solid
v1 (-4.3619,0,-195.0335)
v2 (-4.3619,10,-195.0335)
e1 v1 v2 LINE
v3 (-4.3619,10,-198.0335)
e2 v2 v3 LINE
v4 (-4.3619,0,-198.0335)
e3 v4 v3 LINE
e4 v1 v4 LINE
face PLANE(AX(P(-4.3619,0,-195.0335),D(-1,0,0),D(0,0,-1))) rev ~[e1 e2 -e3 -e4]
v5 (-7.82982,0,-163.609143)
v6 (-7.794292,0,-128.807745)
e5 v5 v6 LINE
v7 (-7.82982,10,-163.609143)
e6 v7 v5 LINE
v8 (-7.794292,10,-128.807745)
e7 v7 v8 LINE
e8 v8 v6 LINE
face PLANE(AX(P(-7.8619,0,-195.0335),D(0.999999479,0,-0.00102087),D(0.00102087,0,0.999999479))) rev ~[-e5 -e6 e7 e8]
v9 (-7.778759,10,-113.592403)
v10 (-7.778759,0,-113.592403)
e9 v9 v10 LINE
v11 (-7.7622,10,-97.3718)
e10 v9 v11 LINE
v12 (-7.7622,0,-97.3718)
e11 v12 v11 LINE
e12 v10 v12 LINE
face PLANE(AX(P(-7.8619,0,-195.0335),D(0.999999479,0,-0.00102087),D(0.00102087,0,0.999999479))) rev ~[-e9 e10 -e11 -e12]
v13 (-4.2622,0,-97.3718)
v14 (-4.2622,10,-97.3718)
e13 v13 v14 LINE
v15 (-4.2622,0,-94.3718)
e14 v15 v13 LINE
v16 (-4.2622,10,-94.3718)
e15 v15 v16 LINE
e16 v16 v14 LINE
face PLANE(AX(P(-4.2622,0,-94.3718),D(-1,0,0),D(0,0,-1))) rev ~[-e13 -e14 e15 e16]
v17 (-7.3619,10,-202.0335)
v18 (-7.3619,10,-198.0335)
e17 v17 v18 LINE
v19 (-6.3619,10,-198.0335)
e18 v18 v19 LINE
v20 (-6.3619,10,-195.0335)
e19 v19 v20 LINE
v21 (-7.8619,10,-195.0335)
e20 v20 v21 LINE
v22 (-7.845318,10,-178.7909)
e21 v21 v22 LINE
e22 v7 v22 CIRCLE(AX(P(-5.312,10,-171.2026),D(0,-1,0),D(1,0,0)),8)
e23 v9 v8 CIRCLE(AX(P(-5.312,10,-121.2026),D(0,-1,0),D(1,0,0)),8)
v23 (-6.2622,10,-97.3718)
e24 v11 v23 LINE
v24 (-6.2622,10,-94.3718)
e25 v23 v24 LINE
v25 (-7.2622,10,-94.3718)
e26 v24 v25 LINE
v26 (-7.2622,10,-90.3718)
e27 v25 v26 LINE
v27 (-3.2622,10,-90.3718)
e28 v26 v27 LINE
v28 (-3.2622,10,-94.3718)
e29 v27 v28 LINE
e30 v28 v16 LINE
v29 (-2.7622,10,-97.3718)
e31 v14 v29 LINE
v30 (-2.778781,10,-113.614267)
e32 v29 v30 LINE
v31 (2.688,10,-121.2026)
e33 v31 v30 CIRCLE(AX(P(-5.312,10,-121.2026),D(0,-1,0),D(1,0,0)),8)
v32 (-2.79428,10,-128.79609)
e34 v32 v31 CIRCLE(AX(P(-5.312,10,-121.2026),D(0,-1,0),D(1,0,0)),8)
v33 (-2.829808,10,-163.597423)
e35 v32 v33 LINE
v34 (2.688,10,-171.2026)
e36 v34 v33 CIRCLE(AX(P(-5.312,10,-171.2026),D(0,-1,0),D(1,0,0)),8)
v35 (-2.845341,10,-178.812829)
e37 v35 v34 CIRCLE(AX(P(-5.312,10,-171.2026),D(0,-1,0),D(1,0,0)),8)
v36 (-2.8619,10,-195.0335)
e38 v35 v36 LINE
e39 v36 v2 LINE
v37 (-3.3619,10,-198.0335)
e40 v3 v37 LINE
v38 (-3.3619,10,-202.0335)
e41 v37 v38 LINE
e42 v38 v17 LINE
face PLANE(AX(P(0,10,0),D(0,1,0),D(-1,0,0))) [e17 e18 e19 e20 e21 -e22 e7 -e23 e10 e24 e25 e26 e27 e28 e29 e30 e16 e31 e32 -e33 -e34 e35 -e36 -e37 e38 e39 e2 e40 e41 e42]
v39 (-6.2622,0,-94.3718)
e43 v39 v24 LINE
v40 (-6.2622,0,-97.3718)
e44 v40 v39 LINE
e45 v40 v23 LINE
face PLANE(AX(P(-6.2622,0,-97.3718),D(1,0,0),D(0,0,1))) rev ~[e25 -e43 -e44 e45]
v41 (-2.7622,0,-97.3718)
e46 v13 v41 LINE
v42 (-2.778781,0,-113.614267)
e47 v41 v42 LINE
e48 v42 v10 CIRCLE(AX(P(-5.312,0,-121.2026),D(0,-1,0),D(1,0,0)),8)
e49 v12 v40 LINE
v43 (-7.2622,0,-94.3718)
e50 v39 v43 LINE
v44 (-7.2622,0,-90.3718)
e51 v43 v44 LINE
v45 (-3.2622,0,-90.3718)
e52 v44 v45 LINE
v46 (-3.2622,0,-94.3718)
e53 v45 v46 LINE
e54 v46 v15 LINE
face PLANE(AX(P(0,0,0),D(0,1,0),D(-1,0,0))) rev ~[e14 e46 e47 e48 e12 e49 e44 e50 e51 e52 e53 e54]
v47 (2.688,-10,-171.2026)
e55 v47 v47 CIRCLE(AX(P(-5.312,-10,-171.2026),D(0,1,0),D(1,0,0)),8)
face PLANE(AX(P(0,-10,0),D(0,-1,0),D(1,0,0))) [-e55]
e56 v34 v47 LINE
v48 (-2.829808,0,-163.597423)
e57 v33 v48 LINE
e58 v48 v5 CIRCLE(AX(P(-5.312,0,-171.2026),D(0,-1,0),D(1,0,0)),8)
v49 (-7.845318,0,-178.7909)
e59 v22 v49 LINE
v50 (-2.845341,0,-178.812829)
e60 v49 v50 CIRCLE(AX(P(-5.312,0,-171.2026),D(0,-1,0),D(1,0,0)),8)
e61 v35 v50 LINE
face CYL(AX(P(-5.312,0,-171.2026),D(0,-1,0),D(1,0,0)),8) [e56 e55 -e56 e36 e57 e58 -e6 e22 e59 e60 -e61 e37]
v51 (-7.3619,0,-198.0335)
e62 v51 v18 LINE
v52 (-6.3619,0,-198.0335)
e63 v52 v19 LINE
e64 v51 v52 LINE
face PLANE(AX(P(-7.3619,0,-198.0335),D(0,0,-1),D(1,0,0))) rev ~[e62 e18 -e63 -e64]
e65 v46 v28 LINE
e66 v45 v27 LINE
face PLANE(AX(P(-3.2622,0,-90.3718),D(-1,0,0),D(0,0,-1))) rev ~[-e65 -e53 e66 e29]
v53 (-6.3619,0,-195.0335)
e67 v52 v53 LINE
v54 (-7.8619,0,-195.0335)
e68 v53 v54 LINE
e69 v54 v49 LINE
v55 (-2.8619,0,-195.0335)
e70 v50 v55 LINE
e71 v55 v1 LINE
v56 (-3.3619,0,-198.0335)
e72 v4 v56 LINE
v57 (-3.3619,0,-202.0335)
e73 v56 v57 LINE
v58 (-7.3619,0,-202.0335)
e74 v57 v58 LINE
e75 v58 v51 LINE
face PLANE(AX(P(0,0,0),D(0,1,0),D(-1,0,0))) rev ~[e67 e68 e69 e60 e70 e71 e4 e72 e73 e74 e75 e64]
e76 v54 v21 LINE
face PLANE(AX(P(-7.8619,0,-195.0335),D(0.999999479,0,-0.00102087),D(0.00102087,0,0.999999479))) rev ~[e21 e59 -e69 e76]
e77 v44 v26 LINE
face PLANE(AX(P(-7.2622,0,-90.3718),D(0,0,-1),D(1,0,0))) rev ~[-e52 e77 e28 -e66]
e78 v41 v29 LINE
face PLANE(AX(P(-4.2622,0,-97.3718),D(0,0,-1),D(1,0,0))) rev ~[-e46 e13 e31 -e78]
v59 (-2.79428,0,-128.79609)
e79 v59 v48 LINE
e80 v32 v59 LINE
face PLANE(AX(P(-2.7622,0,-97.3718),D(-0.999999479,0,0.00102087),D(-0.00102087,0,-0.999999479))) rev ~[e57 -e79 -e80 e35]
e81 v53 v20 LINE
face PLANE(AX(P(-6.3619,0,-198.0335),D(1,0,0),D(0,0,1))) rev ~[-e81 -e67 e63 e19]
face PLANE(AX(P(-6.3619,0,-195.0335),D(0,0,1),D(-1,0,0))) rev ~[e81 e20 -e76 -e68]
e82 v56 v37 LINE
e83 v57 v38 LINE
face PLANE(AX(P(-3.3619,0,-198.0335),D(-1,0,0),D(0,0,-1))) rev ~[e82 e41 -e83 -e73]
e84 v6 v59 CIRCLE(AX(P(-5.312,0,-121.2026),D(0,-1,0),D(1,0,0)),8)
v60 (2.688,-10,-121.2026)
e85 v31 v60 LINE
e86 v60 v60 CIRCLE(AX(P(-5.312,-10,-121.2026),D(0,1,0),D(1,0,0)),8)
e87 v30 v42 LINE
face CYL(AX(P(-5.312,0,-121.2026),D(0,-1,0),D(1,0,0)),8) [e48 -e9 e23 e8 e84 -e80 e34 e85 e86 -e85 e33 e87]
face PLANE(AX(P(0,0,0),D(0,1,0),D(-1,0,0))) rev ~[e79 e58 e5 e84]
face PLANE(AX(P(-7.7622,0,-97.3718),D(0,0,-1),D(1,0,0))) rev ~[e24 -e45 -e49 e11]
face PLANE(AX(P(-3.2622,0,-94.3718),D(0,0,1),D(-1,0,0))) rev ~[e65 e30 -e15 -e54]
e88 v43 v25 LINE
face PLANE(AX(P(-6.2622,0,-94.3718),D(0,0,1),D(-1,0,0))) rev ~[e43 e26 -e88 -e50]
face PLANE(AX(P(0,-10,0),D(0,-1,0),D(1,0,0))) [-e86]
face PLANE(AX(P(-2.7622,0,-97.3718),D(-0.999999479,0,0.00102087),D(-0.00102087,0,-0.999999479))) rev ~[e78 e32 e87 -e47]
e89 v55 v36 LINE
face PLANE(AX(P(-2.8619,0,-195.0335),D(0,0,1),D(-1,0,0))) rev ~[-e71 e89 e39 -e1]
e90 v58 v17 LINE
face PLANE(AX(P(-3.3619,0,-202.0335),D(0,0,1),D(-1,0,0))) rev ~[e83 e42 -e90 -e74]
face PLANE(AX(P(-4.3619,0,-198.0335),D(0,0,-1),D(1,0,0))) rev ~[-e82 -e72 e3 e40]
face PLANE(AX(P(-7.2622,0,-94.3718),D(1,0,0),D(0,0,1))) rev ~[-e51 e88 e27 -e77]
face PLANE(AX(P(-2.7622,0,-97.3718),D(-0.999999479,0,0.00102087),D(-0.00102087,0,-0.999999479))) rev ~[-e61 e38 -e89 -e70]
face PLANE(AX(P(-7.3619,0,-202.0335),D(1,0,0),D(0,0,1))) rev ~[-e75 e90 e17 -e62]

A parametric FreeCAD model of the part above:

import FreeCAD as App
import Part
import Sketcher

V = App.Vector


def add_polygon(sketch, points):
    """Adds a closed chain of lines whose ends are joined by coincident constraints."""
    first, n = sketch.GeometryCount, len(points)
    for a, b in zip(points, points[1:] + points[:1]):
        sketch.addGeometry(Part.LineSegment(App.Vector(*a, 0), App.Vector(*b, 0)), False)
    for i in range(n):
        sketch.addConstraint(Sketcher.Constraint("Coincident", first + i, 2, first + (i + 1) % n, 1))

doc = App.newDocument("Part")
body = doc.addObject("PartDesign::Body", "Body")

# Sketch on XZ plane
sketch1 = doc.addObject("Sketcher::SketchObject", "Sketch")
body.addObject(sketch1)
sketch1.AttachmentSupport = (doc.XZ_Plane, [""])
sketch1.MapMode = "FlatFace"
add_polygon(sketch1, [(-7.8619, -195.0335), (-7.7622, -97.3718), (-6.2622, -97.3718), (-6.2622, -94.3718), (-7.2622, -94.3718), (-7.2622, -90.3718), (-3.2622, -90.3718), (-3.2622, -94.3718), (-4.2622, -94.3718), (-4.2622, -97.3718), (-2.7622, -97.3718), (-2.8619, -195.0335), (-4.3619, -195.0335), (-4.3619, -198.0335), (-3.3619, -198.0335), (-3.3619, -202.0335), (-7.3619, -202.0335), (-7.3619, -198.0335), (-6.3619, -198.0335), (-6.3619, -195.0335)])  # lines 0-19
sketch1.addConstraint([
    Sketcher.Constraint("Horizontal", 1),
    Sketcher.Constraint("Vertical", 2),
    Sketcher.Constraint("Horizontal", 3),
    Sketcher.Constraint("Vertical", 4),
    Sketcher.Constraint("Horizontal", 5),
    Sketcher.Constraint("Vertical", 6),
    Sketcher.Constraint("Horizontal", 7),
    Sketcher.Constraint("Vertical", 8),
    Sketcher.Constraint("Horizontal", 9),
    Sketcher.Constraint("Horizontal", 11),
    Sketcher.Constraint("Vertical", 12),
    Sketcher.Constraint("Horizontal", 13),
    Sketcher.Constraint("Vertical", 14),
    Sketcher.Constraint("Horizontal", 15),
    Sketcher.Constraint("Vertical", 16),
    Sketcher.Constraint("Horizontal", 17),
    Sketcher.Constraint("Vertical", 18),
    Sketcher.Constraint("Horizontal", 19),
    Sketcher.Constraint("Parallel", 0, 10),
    Sketcher.Constraint("Horizontal", 3, 2, 6, 2),
    Sketcher.Constraint("Horizontal", 1, 2, 8, 2),
    Sketcher.Constraint("Horizontal", 13, 2, 16, 2),
    Sketcher.Constraint("Horizontal", 11, 2, 18, 2),
    Sketcher.Constraint("Equal", 3, 7),
    Sketcher.Constraint("Equal", 1, 9),
    Sketcher.Constraint("Equal", 9, 11),
    Sketcher.Constraint("Equal", 7, 13),
    Sketcher.Constraint("Equal", 5, 15),
    Sketcher.Constraint("Equal", 13, 17),
    Sketcher.Constraint("Equal", 15, 4),
    Sketcher.Constraint("Equal", 8, 12),
    Sketcher.Constraint("Equal", 6, 14),
    Sketcher.Constraint("DistanceX", 3, 2, 3, 1, 1.0),
    Sketcher.Constraint("DistanceX", 5, 1, 5, 2, 4.0),
    Sketcher.Constraint("DistanceY", 2, 1, 2, 2, 3.0),
    Sketcher.Constraint("DistanceX", 1, 1, 1, 2, 1.5),
    Sketcher.Constraint("DistanceX", 10, 2, -1, 1, 2.862),
    Sketcher.Constraint("Distance", 0, 97.6618),
    Sketcher.Constraint("DistanceX", 0, 2, -1, 1, 7.7622),
    Sketcher.Constraint("DistanceY", 0, 2, -1, 1, 97.3718),
])
pad1 = doc.addObject("PartDesign::Pad", "Pad")
body.addObject(pad1)
pad1.Profile = sketch1
pad1.Length = 10
pad1.Reversed = True

# Sketch on XZ plane
sketch2 = doc.addObject("Sketcher::SketchObject", "Sketch001")
body.addObject(sketch2)
sketch2.AttachmentSupport = (doc.XZ_Plane, [""])
sketch2.MapMode = "FlatFace"
sketch2.addGeometry([
    Part.Circle(V(-5.312, -171.2026, 0), V(0, 0, 1), 8),
    Part.Circle(V(-5.312, -121.2026, 0), V(0, 0, 1), 8),
], False)
sketch2.addConstraint([
    Sketcher.Constraint("Equal", 0, 1),
    Sketcher.Constraint("Vertical", 0, 3, 1, 3),
    Sketcher.Constraint("Diameter", 0, 16.0),
    Sketcher.Constraint("DistanceY", 0, 3, 1, 3, 50.0),
    Sketcher.Constraint("DistanceX", 0, 3, -1, 1, 5.312),
    Sketcher.Constraint("DistanceY", 0, 3, -1, 1, 171.2026),
])
pad2 = doc.addObject("PartDesign::Pad", "Pad001")
body.addObject(pad2)
pad2.Profile = sketch2
pad2.Length = 20
pad2.Midplane = True

doc.recompute()
